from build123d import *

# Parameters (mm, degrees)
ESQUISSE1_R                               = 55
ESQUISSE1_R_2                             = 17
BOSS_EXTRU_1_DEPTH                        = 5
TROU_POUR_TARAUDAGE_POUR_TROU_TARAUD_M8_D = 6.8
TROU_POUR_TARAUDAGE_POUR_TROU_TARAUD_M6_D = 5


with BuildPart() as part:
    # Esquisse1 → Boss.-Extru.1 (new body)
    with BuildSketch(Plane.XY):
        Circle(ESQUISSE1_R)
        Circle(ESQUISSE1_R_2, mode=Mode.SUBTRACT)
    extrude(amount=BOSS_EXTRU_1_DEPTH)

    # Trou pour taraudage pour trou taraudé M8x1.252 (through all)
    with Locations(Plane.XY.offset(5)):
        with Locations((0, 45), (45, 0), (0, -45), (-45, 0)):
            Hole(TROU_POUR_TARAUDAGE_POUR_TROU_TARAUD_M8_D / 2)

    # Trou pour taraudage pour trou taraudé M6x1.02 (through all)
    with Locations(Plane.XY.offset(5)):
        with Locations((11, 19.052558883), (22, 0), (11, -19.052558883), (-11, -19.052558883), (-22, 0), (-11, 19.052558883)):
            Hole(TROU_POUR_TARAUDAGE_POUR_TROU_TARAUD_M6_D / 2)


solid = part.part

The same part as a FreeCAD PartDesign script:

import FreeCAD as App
import Part
import Sketcher
from FreeCAD import Vector

doc = App.newDocument("Part")
body = doc.addObject("PartDesign::Body", "Body")

# Sketch on XY plane
sketch1 = body.newObject("Sketcher::SketchObject", "Sketch")
sketch1.AttachmentSupport = (doc.getObject("XY_Plane"), [""])
sketch1.MapMode = "FlatFace"
sketch1.addGeometry([
    Part.Circle(Vector(0, 0, 0), Vector(0, 0, 1), 55),
    Part.Circle(Vector(0, 0, 0), Vector(0, 0, 1), 17),
], False)
sketch1.addConstraint([
    Sketcher.Constraint("Coincident", 0, 3, -1, 1),
    Sketcher.Constraint("Coincident", 1, 3, -1, 1),
    Sketcher.Constraint("Diameter", 0, 110.0),
    Sketcher.Constraint("Diameter", 1, 34.0),
])
pad1 = body.newObject("PartDesign::Pad", "Pad")
pad1.Profile = sketch1
pad1.Length = 5

# Sketch on XY plane
sketch2 = body.newObject("Sketcher::SketchObject", "Sketch001")
sketch2.AttachmentSupport = (doc.getObject("XY_Plane"), [""])
sketch2.MapMode = "FlatFace"
sketch2.AttachmentOffset = App.Placement(Vector(0, 0, 5), App.Rotation())
sketch2.addGeometry([
    Part.Circle(Vector(0, 45, 0), Vector(0, 0, 1), 3.4),
    Part.Circle(Vector(45, 0, 0), Vector(0, 0, 1), 3.4),
    Part.Circle(Vector(0, -45, 0), Vector(0, 0, 1), 3.4),
    Part.Circle(Vector(-45, 0, 0), Vector(0, 0, 1), 3.4),
], False)
sketch2.addConstraint([
    Sketcher.Constraint("Equal", 0, 1),
    Sketcher.Constraint("Equal", 1, 2),
    Sketcher.Constraint("Equal", 2, 3),
    Sketcher.Constraint("Symmetric", 0, 3, 2, 3, -1, 1),
    Sketcher.Constraint("Symmetric", 1, 3, 3, 3, -1, 1),
    Sketcher.Constraint("PointOnObject", 0, 3, -2),
    Sketcher.Constraint("PointOnObject", 1, 3, -1),
    Sketcher.Constraint("Diameter", 0, 6.8),
    Sketcher.Constraint("DistanceY", -1, 1, 0, 3, 45.0),
    Sketcher.Constraint("DistanceX", -1, 1, 1, 3, 45.0),
])
doc.recompute()
hole = body.newObject("PartDesign::Hole", "Hole")
hole.Profile = sketch2
hole.ThreadType = "None"
hole.Diameter = 6.8
hole.DepthType = "ThroughAll"

# Sketch on XY plane
sketch3 = body.newObject("Sketcher::SketchObject", "Sketch002")
sketch3.AttachmentSupport = (doc.getObject("XY_Plane"), [""])
sketch3.MapMode = "FlatFace"
sketch3.AttachmentOffset = App.Placement(Vector(0, 0, 5), App.Rotation())
sketch3.addGeometry([
    Part.Circle(Vector(11, 19.052559, 0), Vector(0, 0, 1), 2.5),  # 0
    Part.Circle(Vector(22, 0, 0), Vector(0, 0, 1), 2.5),  # 1
    Part.Circle(Vector(11, -19.052559, 0), Vector(0, 0, 1), 2.5),  # 2
    Part.Circle(Vector(-11, -19.052559, 0), Vector(0, 0, 1), 2.5),  # 3
    Part.Circle(Vector(-22, 0, 0), Vector(0, 0, 1), 2.5),  # 4
    Part.Circle(Vector(-11, 19.052559, 0), Vector(0, 0, 1), 2.5),  # 5
], False)
sketch3.addConstraint([
    Sketcher.Constraint("Equal", 0, 1),
    Sketcher.Constraint("Equal", 1, 2),
    Sketcher.Constraint("Equal", 2, 3),
    Sketcher.Constraint("Equal", 3, 4),
    Sketcher.Constraint("Equal", 4, 5),
    Sketcher.Constraint("Symmetric", 0, 3, 3, 3, -1, 1),
    Sketcher.Constraint("Symmetric", 1, 3, 4, 3, -1, 1),
    Sketcher.Constraint("Symmetric", 2, 3, 5, 3, -1, 1),
    Sketcher.Constraint("Symmetric", 2, 3, 3, 3, -2),
    Sketcher.Constraint("PointOnObject", 1, 3, -1),
    Sketcher.Constraint("Diameter", 0, 5.0),
    Sketcher.Constraint("DistanceX", -1, 1, 0, 3, 11.0),
    Sketcher.Constraint("DistanceX", -1, 1, 1, 3, 22.0),
    Sketcher.Constraint("DistanceY", -1, 1, 0, 3, 19.052559),
])
doc.recompute()
hole2 = body.newObject("PartDesign::Hole", "Hole001")
hole2.Profile = sketch3
hole2.ThreadType = "None"
hole2.Diameter = 5
hole2.DepthType = "ThroughAll"

doc.recompute()
